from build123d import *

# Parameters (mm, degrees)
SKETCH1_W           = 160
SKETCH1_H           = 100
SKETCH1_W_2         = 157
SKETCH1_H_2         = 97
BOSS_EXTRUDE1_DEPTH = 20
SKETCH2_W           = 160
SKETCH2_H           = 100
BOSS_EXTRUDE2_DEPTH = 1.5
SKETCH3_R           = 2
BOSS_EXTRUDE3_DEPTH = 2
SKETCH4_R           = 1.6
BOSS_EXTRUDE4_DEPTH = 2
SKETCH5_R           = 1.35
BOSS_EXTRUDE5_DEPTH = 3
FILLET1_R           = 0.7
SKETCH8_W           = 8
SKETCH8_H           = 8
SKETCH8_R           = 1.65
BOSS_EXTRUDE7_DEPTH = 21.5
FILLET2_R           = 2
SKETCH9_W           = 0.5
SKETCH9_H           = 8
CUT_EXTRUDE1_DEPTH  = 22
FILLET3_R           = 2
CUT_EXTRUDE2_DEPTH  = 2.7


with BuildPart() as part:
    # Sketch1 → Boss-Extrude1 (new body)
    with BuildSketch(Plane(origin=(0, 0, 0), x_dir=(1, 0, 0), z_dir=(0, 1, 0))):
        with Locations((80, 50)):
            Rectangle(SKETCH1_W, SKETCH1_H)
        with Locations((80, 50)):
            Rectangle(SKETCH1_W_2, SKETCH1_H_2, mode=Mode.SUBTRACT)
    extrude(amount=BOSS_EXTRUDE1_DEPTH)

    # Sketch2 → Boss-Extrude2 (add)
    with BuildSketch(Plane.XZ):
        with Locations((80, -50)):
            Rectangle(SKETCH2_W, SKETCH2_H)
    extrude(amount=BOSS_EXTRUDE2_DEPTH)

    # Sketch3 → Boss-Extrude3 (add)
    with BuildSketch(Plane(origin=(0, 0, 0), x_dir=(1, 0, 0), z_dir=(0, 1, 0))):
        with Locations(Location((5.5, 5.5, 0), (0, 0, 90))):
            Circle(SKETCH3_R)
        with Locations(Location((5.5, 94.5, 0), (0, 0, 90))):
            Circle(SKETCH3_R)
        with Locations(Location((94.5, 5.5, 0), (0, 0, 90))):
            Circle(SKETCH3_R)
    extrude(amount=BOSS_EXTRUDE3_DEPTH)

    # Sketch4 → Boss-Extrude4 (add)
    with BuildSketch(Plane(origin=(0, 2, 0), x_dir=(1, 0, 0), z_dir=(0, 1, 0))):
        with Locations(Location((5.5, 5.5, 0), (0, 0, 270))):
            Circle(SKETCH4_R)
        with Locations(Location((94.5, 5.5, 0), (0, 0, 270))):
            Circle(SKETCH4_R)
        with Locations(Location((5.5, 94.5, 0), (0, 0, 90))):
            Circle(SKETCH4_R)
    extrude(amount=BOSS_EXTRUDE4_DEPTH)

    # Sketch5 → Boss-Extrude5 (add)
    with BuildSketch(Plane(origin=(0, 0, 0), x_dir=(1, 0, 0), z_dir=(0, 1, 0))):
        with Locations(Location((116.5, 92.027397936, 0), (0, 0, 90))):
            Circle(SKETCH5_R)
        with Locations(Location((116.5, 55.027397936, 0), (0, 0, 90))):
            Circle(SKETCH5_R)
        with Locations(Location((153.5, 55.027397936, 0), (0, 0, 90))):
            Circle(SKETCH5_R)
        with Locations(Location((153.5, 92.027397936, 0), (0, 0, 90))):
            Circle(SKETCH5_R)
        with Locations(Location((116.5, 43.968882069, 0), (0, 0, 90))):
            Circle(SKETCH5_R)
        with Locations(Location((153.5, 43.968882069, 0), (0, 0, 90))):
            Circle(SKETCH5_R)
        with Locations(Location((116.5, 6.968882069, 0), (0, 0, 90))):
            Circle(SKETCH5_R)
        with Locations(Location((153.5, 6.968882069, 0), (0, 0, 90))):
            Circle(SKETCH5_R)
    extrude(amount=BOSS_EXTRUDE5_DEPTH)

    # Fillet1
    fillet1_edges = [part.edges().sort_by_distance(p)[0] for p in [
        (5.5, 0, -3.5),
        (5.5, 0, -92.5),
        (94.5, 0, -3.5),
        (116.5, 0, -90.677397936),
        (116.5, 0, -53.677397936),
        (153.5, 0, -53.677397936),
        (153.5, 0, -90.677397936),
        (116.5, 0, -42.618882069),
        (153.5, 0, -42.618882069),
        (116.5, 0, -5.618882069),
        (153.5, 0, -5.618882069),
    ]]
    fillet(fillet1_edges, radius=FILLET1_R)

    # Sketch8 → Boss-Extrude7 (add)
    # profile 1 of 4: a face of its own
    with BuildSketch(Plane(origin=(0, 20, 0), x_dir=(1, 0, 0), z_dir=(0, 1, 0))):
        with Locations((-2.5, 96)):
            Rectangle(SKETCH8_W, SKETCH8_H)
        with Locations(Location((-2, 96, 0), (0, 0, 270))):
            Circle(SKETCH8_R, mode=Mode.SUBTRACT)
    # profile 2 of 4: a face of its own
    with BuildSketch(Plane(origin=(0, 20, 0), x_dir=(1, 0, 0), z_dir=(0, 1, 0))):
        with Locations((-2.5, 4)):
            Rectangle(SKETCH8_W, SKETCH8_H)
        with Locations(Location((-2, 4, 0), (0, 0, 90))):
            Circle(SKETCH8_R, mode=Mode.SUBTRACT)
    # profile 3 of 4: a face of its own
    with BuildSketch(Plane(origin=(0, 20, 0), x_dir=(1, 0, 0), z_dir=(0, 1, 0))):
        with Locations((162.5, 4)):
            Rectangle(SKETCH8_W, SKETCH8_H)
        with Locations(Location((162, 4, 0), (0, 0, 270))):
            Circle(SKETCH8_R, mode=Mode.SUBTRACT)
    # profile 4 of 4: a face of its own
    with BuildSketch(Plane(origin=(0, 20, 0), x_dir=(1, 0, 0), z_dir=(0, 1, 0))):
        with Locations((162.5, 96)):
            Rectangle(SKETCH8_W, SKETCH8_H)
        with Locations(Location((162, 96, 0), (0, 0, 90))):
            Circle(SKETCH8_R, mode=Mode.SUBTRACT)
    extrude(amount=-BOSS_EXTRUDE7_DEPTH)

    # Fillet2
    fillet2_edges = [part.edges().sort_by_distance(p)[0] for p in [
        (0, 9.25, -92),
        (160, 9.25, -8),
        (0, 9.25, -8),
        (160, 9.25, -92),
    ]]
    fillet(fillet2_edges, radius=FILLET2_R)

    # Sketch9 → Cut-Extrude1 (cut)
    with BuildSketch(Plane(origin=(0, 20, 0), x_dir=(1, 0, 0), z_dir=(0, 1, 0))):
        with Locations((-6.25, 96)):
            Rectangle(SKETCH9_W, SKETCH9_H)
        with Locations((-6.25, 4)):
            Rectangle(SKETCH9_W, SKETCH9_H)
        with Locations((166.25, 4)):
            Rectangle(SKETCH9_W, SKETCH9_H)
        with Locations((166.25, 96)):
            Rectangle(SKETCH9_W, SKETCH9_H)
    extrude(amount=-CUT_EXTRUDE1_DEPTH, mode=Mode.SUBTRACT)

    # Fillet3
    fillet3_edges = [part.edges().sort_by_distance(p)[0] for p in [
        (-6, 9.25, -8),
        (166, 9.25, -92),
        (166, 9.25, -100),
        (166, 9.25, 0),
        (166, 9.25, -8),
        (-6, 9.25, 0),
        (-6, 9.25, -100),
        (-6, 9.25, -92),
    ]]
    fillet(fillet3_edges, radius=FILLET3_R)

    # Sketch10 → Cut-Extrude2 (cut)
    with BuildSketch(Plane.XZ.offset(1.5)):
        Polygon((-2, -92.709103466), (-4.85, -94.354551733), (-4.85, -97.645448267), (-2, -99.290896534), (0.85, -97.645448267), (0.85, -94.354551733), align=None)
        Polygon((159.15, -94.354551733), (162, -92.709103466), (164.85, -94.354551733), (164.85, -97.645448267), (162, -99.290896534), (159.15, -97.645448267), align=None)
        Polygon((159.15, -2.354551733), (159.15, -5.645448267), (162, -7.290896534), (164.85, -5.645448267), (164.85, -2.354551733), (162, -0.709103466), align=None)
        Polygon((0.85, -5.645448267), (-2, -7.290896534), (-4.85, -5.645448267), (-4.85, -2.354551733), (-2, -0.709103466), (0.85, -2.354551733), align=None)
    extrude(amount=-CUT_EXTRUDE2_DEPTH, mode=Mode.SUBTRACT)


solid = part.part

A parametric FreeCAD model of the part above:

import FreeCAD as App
import Part
import Sketcher
Q = App.Units.Quantity


def edges_at(feature, points):
    """Names of the edges that pass closest to the given points."""
    edges = feature.Shape.Edges
    near = lambda p: min(range(len(edges)), key=lambda i: edges[i].distToShape(Part.Vertex(*p))[0])
    return sorted({f"Edge{near(p) + 1}" for p in points})


def add_polygon(sketch, points):
    """Adds a closed chain of lines whose ends are joined by coincident constraints."""
    first, n = sketch.GeometryCount, len(points)
    for a, b in zip(points, points[1:] + points[:1]):
        sketch.addGeometry(Part.LineSegment(App.Vector(*a, 0), App.Vector(*b, 0)), False)
    for i in range(n):
        sketch.addConstraint(Sketcher.Constraint("Coincident", first + i, 2, first + (i + 1) % n, 1))

doc = App.newDocument("Part")
body = doc.addObject("PartDesign::Body", "Body")

# Sketch on XZ plane
sketch1 = body.newObject("Sketcher::SketchObject", "Sketch")
sketch1.AttachmentSupport = (doc.getObject("XZ_Plane"), [""])
sketch1.MapMode = "FlatFace"
add_polygon(sketch1, [(0, -100), (0, 0), (160, 0), (160, -100)])  # lines 0-3
add_polygon(sketch1, [(158, -2), (2, -2), (2, -98), (158, -98)])  # lines 4-7
sketch1.addConstraint(Sketcher.Constraint("Vertical", 0))
sketch1.addConstraint(Sketcher.Constraint("Horizontal", 1))
sketch1.addConstraint(Sketcher.Constraint("Vertical", 2))
sketch1.addConstraint(Sketcher.Constraint("Horizontal", 3))
sketch1.addConstraint(Sketcher.Constraint("Horizontal", 4))
sketch1.addConstraint(Sketcher.Constraint("Vertical", 5))
sketch1.addConstraint(Sketcher.Constraint("Horizontal", 6))
sketch1.addConstraint(Sketcher.Constraint("Vertical", 7))
sketch1.addConstraint(Sketcher.Constraint("Coincident", 0, 2, -1, 1))
sketch1.addConstraint(Sketcher.Constraint("DistanceX", 1, 1, 1, 2, Q("160 mm")))
sketch1.addConstraint(Sketcher.Constraint("DistanceX", 4, 2, 4, 1, Q("157 mm")))
sketch1.addConstraint(Sketcher.Constraint("DistanceY", 0, 1, 0, 2, Q("100 mm")))
sketch1.addConstraint(Sketcher.Constraint("DistanceY", 5, 2, 5, 1, Q("97 mm")))
sketch1.addConstraint(Sketcher.Constraint("DistanceX", -1, 1, 4, 2, Q("1.5 mm")))
sketch1.addConstraint(Sketcher.Constraint("DistanceY", 4, 2, -1, 1, Q("1.5 mm")))
pad1 = body.newObject("PartDesign::Pad", "Pad")
pad1.Profile = sketch1
pad1.Length = 20
pad1.Reversed = True

# Sketch on XZ plane
sketch2 = body.newObject("Sketcher::SketchObject", "Sketch001")
sketch2.AttachmentSupport = (doc.getObject("XZ_Plane"), [""])
sketch2.MapMode = "FlatFace"
add_polygon(sketch2, [(0, 0), (0, -100), (160, -100), (160, 0)])  # lines 0-3
sketch2.addConstraint(Sketcher.Constraint("Vertical", 0))
sketch2.addConstraint(Sketcher.Constraint("Horizontal", 1))
sketch2.addConstraint(Sketcher.Constraint("Vertical", 2))
sketch2.addConstraint(Sketcher.Constraint("Horizontal", 3))
sketch2.addConstraint(Sketcher.Constraint("Coincident", 3, 2, -1, 1))
sketch2.addConstraint(Sketcher.Constraint("DistanceX", 1, 1, 1, 2, Q("160 mm")))
sketch2.addConstraint(Sketcher.Constraint("DistanceY", 0, 2, 0, 1, Q("100 mm")))
pad2 = body.newObject("PartDesign::Pad", "Pad001")
pad2.Profile = sketch2
pad2.Length = 1.5

# Sketch on XZ plane
sketch3 = body.newObject("Sketcher::SketchObject", "Sketch002")
sketch3.AttachmentSupport = (doc.getObject("XZ_Plane"), [""])
sketch3.MapMode = "FlatFace"
sketch3.addGeometry(Part.Circle(App.Vector(5.5, -5.5, 0), App.Vector(0, 0, 1), 2), False)
sketch3.addGeometry(Part.Circle(App.Vector(5.5, -94.5, 0), App.Vector(0, 0, 1), 2), False)
sketch3.addGeometry(Part.Circle(App.Vector(94.5, -5.5, 0), App.Vector(0, 0, 1), 2), False)
sketch3.addConstraint(Sketcher.Constraint("Equal", 0, 1))
sketch3.addConstraint(Sketcher.Constraint("Equal", 1, 2))
sketch3.addConstraint(Sketcher.Constraint("Horizontal", 0, 3, 2, 3))
sketch3.addConstraint(Sketcher.Constraint("Vertical", 0, 3, 1, 3))
sketch3.addConstraint(Sketcher.Constraint("Diameter", 0, Q("4 mm")))
sketch3.addConstraint(Sketcher.Constraint("DistanceY", 1, 3, 0, 3, Q("89 mm")))
sketch3.addConstraint(Sketcher.Constraint("DistanceX", 0, 3, 2, 3, Q("89 mm")))
sketch3.addConstraint(Sketcher.Constraint("DistanceX", -1, 1, 0, 3, Q("5.5 mm")))
sketch3.addConstraint(Sketcher.Constraint("DistanceY", 0, 3, -1, 1, Q("5.5 mm")))
pad3 = body.newObject("PartDesign::Pad", "Pad002")
pad3.Profile = sketch3
pad3.Length = 2
pad3.Reversed = True

# Sketch on XZ plane
sketch4 = body.newObject("Sketcher::SketchObject", "Sketch003")
sketch4.AttachmentSupport = (doc.getObject("XZ_Plane"), [""])
sketch4.MapMode = "FlatFace"
sketch4.AttachmentOffset = App.Placement(App.Vector(0, 0, -2), App.Rotation())
sketch4.addGeometry(Part.Circle(App.Vector(5.5, -5.5, 0), App.Vector(0, 0, 1), 1.6), False)
sketch4.addGeometry(Part.Circle(App.Vector(94.5, -5.5, 0), App.Vector(0, 0, 1), 1.6), False)
sketch4.addGeometry(Part.Circle(App.Vector(5.5, -94.5, 0), App.Vector(0, 0, 1), 1.6), False)
sketch4.addConstraint(Sketcher.Constraint("Equal", 0, 1))
sketch4.addConstraint(Sketcher.Constraint("Equal", 1, 2))
sketch4.addConstraint(Sketcher.Constraint("Horizontal", 0, 3, 1, 3))
sketch4.addConstraint(Sketcher.Constraint("Vertical", 0, 3, 2, 3))
sketch4.addConstraint(Sketcher.Constraint("Diameter", 0, Q("3.2 mm")))
sketch4.addConstraint(Sketcher.Constraint("DistanceX", 0, 3, 1, 3, Q("89 mm")))
sketch4.addConstraint(Sketcher.Constraint("DistanceY", 2, 3, 0, 3, Q("89 mm")))
sketch4.addConstraint(Sketcher.Constraint("DistanceX", -1, 1, 0, 3, Q("5.5 mm")))
sketch4.addConstraint(Sketcher.Constraint("DistanceY", 0, 3, -1, 1, Q("5.5 mm")))
pad4 = body.newObject("PartDesign::Pad", "Pad003")
pad4.Profile = sketch4
pad4.Length = 2
pad4.Reversed = True

# Sketch on XZ plane
sketch5 = body.newObject("Sketcher::SketchObject", "Sketch004")
sketch5.AttachmentSupport = (doc.getObject("XZ_Plane"), [""])
sketch5.MapMode = "FlatFace"
sketch5.addGeometry(Part.Circle(App.Vector(116.5, -92, 0), App.Vector(0, 0, 1), 1.4), False)
sketch5.addGeometry(Part.Circle(App.Vector(116.5, -55, 0), App.Vector(0, 0, 1), 1.4), False)
sketch5.addGeometry(Part.Circle(App.Vector(153.5, -55, 0), App.Vector(0, 0, 1), 1.4), False)
sketch5.addGeometry(Part.Circle(App.Vector(153.5, -92, 0), App.Vector(0, 0, 1), 1.4), False)
sketch5.addGeometry(Part.Circle(App.Vector(116.5, -44, 0), App.Vector(0, 0, 1), 1.4), False)
sketch5.addGeometry(Part.Circle(App.Vector(153.5, -44, 0), App.Vector(0, 0, 1), 1.4), False)
sketch5.addGeometry(Part.Circle(App.Vector(116.5, -7, 0), App.Vector(0, 0, 1), 1.4), False)
sketch5.addGeometry(Part.Circle(App.Vector(153.5, -7, 0), App.Vector(0, 0, 1), 1.4), False)
sketch5.addConstraint(Sketcher.Constraint("Equal", 0, 1))
sketch5.addConstraint(Sketcher.Constraint("Equal", 1, 2))
sketch5.addConstraint(Sketcher.Constraint("Equal", 2, 3))
sketch5.addConstraint(Sketcher.Constraint("Equal", 3, 4))
sketch5.addConstraint(Sketcher.Constraint("Equal", 4, 5))
sketch5.addConstraint(Sketcher.Constraint("Equal", 5, 6))
sketch5.addConstraint(Sketcher.Constraint("Equal", 6, 7))
sketch5.addConstraint(Sketcher.Constraint("Horizontal", 1, 3, 2, 3))
sketch5.addConstraint(Sketcher.Constraint("Horizontal", 0, 3, 3, 3))
sketch5.addConstraint(Sketcher.Constraint("Horizontal", 4, 3, 5, 3))
sketch5.addConstraint(Sketcher.Constraint("Horizontal", 6, 3, 7, 3))
sketch5.addConstraint(Sketcher.Constraint("Vertical", 0, 3, 1, 3))
sketch5.addConstraint(Sketcher.Constraint("Vertical", 2, 3, 3, 3))
sketch5.addConstraint(Sketcher.Constraint("Vertical", 1, 3, 4, 3))
sketch5.addConstraint(Sketcher.Constraint("Vertical", 3, 3, 5, 3))
sketch5.addConstraint(Sketcher.Constraint("Vertical", 4, 3, 6, 3))
sketch5.addConstraint(Sketcher.Constraint("Vertical", 5, 3, 7, 3))
sketch5.addConstraint(Sketcher.Constraint("Diameter", 0, Q("2.7 mm")))
sketch5.addConstraint(Sketcher.Constraint("DistanceY", 0, 3, 1, 3, Q("37 mm")))
sketch5.addConstraint(Sketcher.Constraint("DistanceX", 1, 3, 2, 3, Q("37 mm")))
sketch5.addConstraint(Sketcher.Constraint("DistanceY", 4, 3, 6, 3, Q("37 mm")))
sketch5.addConstraint(Sketcher.Constraint("DistanceX", -1, 1, 0, 3, Q("116.5 mm")))
sketch5.addConstraint(Sketcher.Constraint("DistanceY", 0, 3, -1, 1, Q("92.027398 mm")))
sketch5.addConstraint(Sketcher.Constraint("DistanceY", 4, 3, -1, 1, Q("43.968882 mm")))
pad5 = body.newObject("PartDesign::Pad", "Pad004")
pad5.Profile = sketch5
pad5.Length = 3
pad5.Reversed = True
doc.recompute()

fillet = body.newObject("PartDesign::Fillet", "Fillet")
fillet.Base = (pad5, edges_at(pad5, [
    (5.5, 0, -3.5),
    (5.5, 0, -92.5),
    (94.5, 0, -3.5),
    (116.5, 0, -90.677),
    (116.5, 0, -53.677),
    (153.5, 0, -53.677),
    (153.5, 0, -90.677),
    (116.5, 0, -42.619),
    (153.5, 0, -42.619),
    (116.5, 0, -5.619),
    (153.5, 0, -5.619),
]))
fillet.Radius = 0.7

# Sketch on XZ plane
sketch6 = body.newObject("Sketcher::SketchObject", "Sketch005")
sketch6.AttachmentSupport = (doc.getObject("XZ_Plane"), [""])
sketch6.MapMode = "FlatFace"
sketch6.AttachmentOffset = App.Placement(App.Vector(0, 0, -20), App.Rotation())
add_polygon(sketch6, [(-6.5, -100), (-6.5, -92), (1.5, -92), (1.5, -100)])  # lines 0-3
sketch6.addGeometry(Part.Circle(App.Vector(-2, -96, 0), App.Vector(0, 0, 1), 1.6), False)  # 4
add_polygon(sketch6, [(-6.5, -8), (-6.5, 0), (1.5, 0), (1.5, -8)])  # lines 5-8
sketch6.addGeometry(Part.Circle(App.Vector(-2, -4, 0), App.Vector(0, 0, 1), 1.6), False)  # 9
add_polygon(sketch6, [(158.5, -8), (158.5, 0), (166.5, 0), (166.5, -8)])  # lines 10-13
sketch6.addGeometry(Part.Circle(App.Vector(162, -4, 0), App.Vector(0, 0, 1), 1.6), False)  # 14
add_polygon(sketch6, [(158.5, -100), (158.5, -92), (166.5, -92), (166.5, -100)])  # lines 15-18
sketch6.addGeometry(Part.Circle(App.Vector(162, -96, 0), App.Vector(0, 0, 1), 1.6), False)  # 19
sketch6.addConstraint(Sketcher.Constraint("Vertical", 0))
sketch6.addConstraint(Sketcher.Constraint("Horizontal", 1))
sketch6.addConstraint(Sketcher.Constraint("Vertical", 2))
sketch6.addConstraint(Sketcher.Constraint("Horizontal", 3))
sketch6.addConstraint(Sketcher.Constraint("Vertical", 5))
sketch6.addConstraint(Sketcher.Constraint("Horizontal", 6))
sketch6.addConstraint(Sketcher.Constraint("Vertical", 7))
sketch6.addConstraint(Sketcher.Constraint("Horizontal", 8))
sketch6.addConstraint(Sketcher.Constraint("Vertical", 10))
sketch6.addConstraint(Sketcher.Constraint("Horizontal", 11))
sketch6.addConstraint(Sketcher.Constraint("Vertical", 12))
sketch6.addConstraint(Sketcher.Constraint("Horizontal", 13))
sketch6.addConstraint(Sketcher.Constraint("Vertical", 15))
sketch6.addConstraint(Sketcher.Constraint("Horizontal", 16))
sketch6.addConstraint(Sketcher.Constraint("Vertical", 17))
sketch6.addConstraint(Sketcher.Constraint("Horizontal", 18))
sketch6.addConstraint(Sketcher.Constraint("Equal", 4, 9))
sketch6.addConstraint(Sketcher.Constraint("Equal", 9, 14))
sketch6.addConstraint(Sketcher.Constraint("Equal", 14, 19))
sketch6.addConstraint(Sketcher.Constraint("PointOnObject", 5, 2, -1))
sketch6.addConstraint(Sketcher.Constraint("PointOnObject", 10, 2, -1))
sketch6.addConstraint(Sketcher.Constraint("Horizontal", 9, 3, 14, 3))
sketch6.addConstraint(Sketcher.Constraint("Horizontal", 4, 3, 19, 3))
sketch6.addConstraint(Sketcher.Constraint("Horizontal", 8, 2, 12, 2))
sketch6.addConstraint(Sketcher.Constraint("Horizontal", 1, 2, 15, 2))
sketch6.addConstraint(Sketcher.Constraint("Horizontal", 3, 2, 17, 2))
sketch6.addConstraint(Sketcher.Constraint("Vertical", 4, 3, 9, 3))
sketch6.addConstraint(Sketcher.Constraint("Vertical", 14, 3, 19, 3))
sketch6.addConstraint(Sketcher.Constraint("Vertical", 3, 2, 5, 2))
sketch6.addConstraint(Sketcher.Constraint("Vertical", 2, 2, 6, 2))
sketch6.addConstraint(Sketcher.Constraint("Vertical", 13, 2, 15, 2))
sketch6.addConstraint(Sketcher.Constraint("Vertical", 12, 2, 16, 2))
sketch6.addConstraint(Sketcher.Constraint("Equal", 8, 11))
sketch6.addConstraint(Sketcher.Constraint("Equal", 18, 0))
sketch6.addConstraint(Sketcher.Constraint("Equal", 2, 5))
sketch6.addConstraint(Sketcher.Constraint("Diameter", 4, Q("3.3 mm")))
sketch6.addConstraint(Sketcher.Constraint("DistanceX", 1, 1, 1, 2, Q("8 mm")))
sketch6.addConstraint(Sketcher.Constraint("DistanceX", 4, 3, -1, 1, Q("2 mm")))
sketch6.addConstraint(Sketcher.Constraint("DistanceY", 4, 3, -1, 1, Q("96 mm")))
sketch6.addConstraint(Sketcher.Constraint("DistanceY", 9, 3, -1, 1, Q("4 mm")))
sketch6.addConstraint(Sketcher.Constraint("DistanceX", -1, 1, 14, 3, Q("162 mm")))
sketch6.addConstraint(Sketcher.Constraint("DistanceY", 0, 2, -1, 1, Q("92 mm")))
sketch6.addConstraint(Sketcher.Constraint("DistanceX", 6, 2, 10, 2, Q("157 mm")))
sketch6.addConstraint(Sketcher.Constraint("DistanceX", 0, 2, -1, 1, Q("6.5 mm")))
pad6 = body.newObject("PartDesign::Pad", "Pad005")
pad6.Profile = sketch6
pad6.Length = 21.5
doc.recompute()

fillet2 = body.newObject("PartDesign::Fillet", "Fillet001")
fillet2.Base = (pad6, edges_at(pad6, [
    (0, 9.25, -92),
    (160, 9.25, -8),
    (0, 9.25, -8),
    (160, 9.25, -92),
]))
fillet2.Radius = 2

# Sketch on XZ plane
sketch7 = body.newObject("Sketcher::SketchObject", "Sketch006")
sketch7.AttachmentSupport = (doc.getObject("XZ_Plane"), [""])
sketch7.MapMode = "FlatFace"
sketch7.AttachmentOffset = App.Placement(App.Vector(0, 0, -20), App.Rotation())
add_polygon(sketch7, [(-6.5, -100), (-6.5, -92), (-6, -92), (-6, -100)])  # lines 0-3
add_polygon(sketch7, [(-6.5, -8), (-6.5, 0), (-6, 0), (-6, -8)])  # lines 4-7
add_polygon(sketch7, [(166, -8), (166, 0), (166.5, 0), (166.5, -8)])  # lines 8-11
add_polygon(sketch7, [(166, -100), (166, -92), (166.5, -92), (166.5, -100)])  # lines 12-15
sketch7.addConstraint(Sketcher.Constraint("Vertical", 0))
sketch7.addConstraint(Sketcher.Constraint("Horizontal", 1))
sketch7.addConstraint(Sketcher.Constraint("Vertical", 2))
sketch7.addConstraint(Sketcher.Constraint("Horizontal", 3))
sketch7.addConstraint(Sketcher.Constraint("Vertical", 4))
sketch7.addConstraint(Sketcher.Constraint("Horizontal", 5))
sketch7.addConstraint(Sketcher.Constraint("Vertical", 6))
sketch7.addConstraint(Sketcher.Constraint("Horizontal", 7))
sketch7.addConstraint(Sketcher.Constraint("Vertical", 8))
sketch7.addConstraint(Sketcher.Constraint("Horizontal", 9))
sketch7.addConstraint(Sketcher.Constraint("Vertical", 10))
sketch7.addConstraint(Sketcher.Constraint("Horizontal", 11))
sketch7.addConstraint(Sketcher.Constraint("Vertical", 12))
sketch7.addConstraint(Sketcher.Constraint("Horizontal", 13))
sketch7.addConstraint(Sketcher.Constraint("Vertical", 14))
sketch7.addConstraint(Sketcher.Constraint("Horizontal", 15))
sketch7.addConstraint(Sketcher.Constraint("PointOnObject", 4, 2, -1))
sketch7.addConstraint(Sketcher.Constraint("PointOnObject", 8, 2, -1))
sketch7.addConstraint(Sketcher.Constraint("Horizontal", 7, 2, 10, 2))
sketch7.addConstraint(Sketcher.Constraint("Horizontal", 1, 2, 12, 2))
sketch7.addConstraint(Sketcher.Constraint("Horizontal", 3, 2, 14, 2))
sketch7.addConstraint(Sketcher.Constraint("Vertical", 3, 2, 4, 2))
sketch7.addConstraint(Sketcher.Constraint("Vertical", 2, 2, 5, 2))
sketch7.addConstraint(Sketcher.Constraint("Vertical", 11, 2, 12, 2))
sketch7.addConstraint(Sketcher.Constraint("Vertical", 10, 2, 13, 2))
sketch7.addConstraint(Sketcher.Constraint("Equal", 7, 9))
sketch7.addConstraint(Sketcher.Constraint("Equal", 2, 4))
sketch7.addConstraint(Sketcher.Constraint("DistanceY", 0, 1, 0, 2, Q("8 mm")))
sketch7.addConstraint(Sketcher.Constraint("DistanceX", 1, 1, 1, 2, Q("0.5 mm")))
sketch7.addConstraint(Sketcher.Constraint("DistanceY", 0, 2, -1, 1, Q("92 mm")))
sketch7.addConstraint(Sketcher.Constraint("DistanceX", 1, 2, -1, 1, Q("6 mm")))
sketch7.addConstraint(Sketcher.Constraint("DistanceX", -1, 1, 8, 2, Q("166 mm")))
pocket1 = body.newObject("PartDesign::Pocket", "Pocket")
pocket1.Profile = sketch7
pocket1.Length = 22
pocket1.Reversed = True
doc.recompute()

fillet3 = body.newObject("PartDesign::Fillet", "Fillet002")
fillet3.Base = (pocket1, edges_at(pocket1, [
    (-6, 9.25, -8),
    (166, 9.25, -92),
    (166, 9.25, -100),
    (166, 9.25, 0),
    (166, 9.25, -8),
    (-6, 9.25, 0),
    (-6, 9.25, -100),
    (-6, 9.25, -92),
]))
fillet3.Radius = 2

# Sketch on XZ plane
sketch8 = body.newObject("Sketcher::SketchObject", "Sketch007")
sketch8.AttachmentSupport = (doc.getObject("XZ_Plane"), [""])
sketch8.MapMode = "FlatFace"
sketch8.AttachmentOffset = App.Placement(App.Vector(0, 0, 1.5), App.Rotation())
add_polygon(sketch8, [(-2, -92.7), (-4.8, -94.4), (-4.8, -97.6), (-2, -99.3), (0.8, -97.6), (0.8, -94.4)])  # lines 0-5
add_polygon(sketch8, [(162, -92.7), (159.2, -94.4), (159.2, -97.6), (162, -99.3), (164.8, -97.6), (164.8, -94.4)])  # lines 6-11
add_polygon(sketch8, [(159.2, -2.4), (159.2, -5.6), (162, -7.3), (164.8, -5.6), (164.8, -2.4), (162, -0.7)])  # lines 12-17
add_polygon(sketch8, [(-2, -7.3), (0.8, -5.6), (0.8, -2.4), (-2, -0.7), (-4.8, -2.4), (-4.8, -5.6)])  # lines 18-23
sketch8.addConstraint(Sketcher.Constraint("Vertical", 1))
sketch8.addConstraint(Sketcher.Constraint("Vertical", 4))
sketch8.addConstraint(Sketcher.Constraint("Vertical", 7))
sketch8.addConstraint(Sketcher.Constraint("Vertical", 10))
sketch8.addConstraint(Sketcher.Constraint("Vertical", 12))
sketch8.addConstraint(Sketcher.Constraint("Vertical", 15))
sketch8.addConstraint(Sketcher.Constraint("Vertical", 19))
sketch8.addConstraint(Sketcher.Constraint("Vertical", 22))
sketch8.addConstraint(Sketcher.Constraint("Parallel", 0, 3))
sketch8.addConstraint(Sketcher.Constraint("Parallel", 2, 5))
sketch8.addConstraint(Sketcher.Constraint("Parallel", 3, 6))
sketch8.addConstraint(Sketcher.Constraint("Parallel", 5, 8))
sketch8.addConstraint(Sketcher.Constraint("Parallel", 6, 9))
sketch8.addConstraint(Sketcher.Constraint("Parallel", 8, 11))
sketch8.addConstraint(Sketcher.Constraint("Parallel", 11, 13))
sketch8.addConstraint(Sketcher.Constraint("Parallel", 9, 14))
sketch8.addConstraint(Sketcher.Constraint("Parallel", 13, 16))
sketch8.addConstraint(Sketcher.Constraint("Parallel", 14, 17))
sketch8.addConstraint(Sketcher.Constraint("Parallel", 17, 18))
sketch8.addConstraint(Sketcher.Constraint("Parallel", 16, 20))
sketch8.addConstraint(Sketcher.Constraint("Parallel", 18, 21))
sketch8.addConstraint(Sketcher.Constraint("Parallel", 20, 23))
sketch8.addConstraint(Sketcher.Constraint("Horizontal", 1, 2, 3, 2))
sketch8.addConstraint(Sketcher.Constraint("Horizontal", 0, 2, 4, 2))
sketch8.addConstraint(Sketcher.Constraint("Horizontal", 4, 2, 6, 2))
sketch8.addConstraint(Sketcher.Constraint("Horizontal", 3, 2, 7, 2))
sketch8.addConstraint(Sketcher.Constraint("Horizontal", 2, 2, 8, 2))
sketch8.addConstraint(Sketcher.Constraint("Horizontal", 7, 2, 9, 2))
sketch8.addConstraint(Sketcher.Constraint("Horizontal", 6, 2, 10, 2))
sketch8.addConstraint(Sketcher.Constraint("Horizontal", 12, 2, 14, 2))
sketch8.addConstraint(Sketcher.Constraint("Horizontal", 15, 2, 17, 2))
sketch8.addConstraint(Sketcher.Constraint("Horizontal", 14, 2, 18, 2))
sketch8.addConstraint(Sketcher.Constraint("Horizontal", 17, 2, 19, 2))
sketch8.addConstraint(Sketcher.Constraint("Horizontal", 16, 2, 20, 2))
sketch8.addConstraint(Sketcher.Constraint("Horizontal", 19, 2, 21, 2))
sketch8.addConstraint(Sketcher.Constraint("Horizontal", 18, 2, 22, 2))
sketch8.addConstraint(Sketcher.Constraint("Vertical", 2, 2, 5, 2))
sketch8.addConstraint(Sketcher.Constraint("Vertical", 7, 2, 12, 2))
sketch8.addConstraint(Sketcher.Constraint("Vertical", 11, 2, 13, 2))
sketch8.addConstraint(Sketcher.Constraint("Vertical", 4, 2, 18, 2))
sketch8.addConstraint(Sketcher.Constraint("Equal", 10, 12))
sketch8.addConstraint(Sketcher.Constraint("Angle", 0, Q("-150 deg")))
sketch8.addConstraint(Sketcher.Constraint("DistanceX", 2, 2, -1, 1, Q("2 mm")))
sketch8.addConstraint(Sketcher.Constraint("DistanceX", -1, 1, 8, 2, Q("162 mm")))
sketch8.addConstraint(Sketcher.Constraint("DistanceY", 7, 2, 12, 2, Q("92 mm")))
sketch8.addConstraint(Sketcher.Constraint("DistanceX", 1, 2, 3, 2, Q("5.7 mm")))
sketch8.addConstraint(Sketcher.Constraint("DistanceY", 1, 2, 1, 1, Q("3.290897 mm")))
sketch8.addConstraint(Sketcher.Constraint("DistanceY", 0, 2, -1, 1, Q("94.354552 mm")))
pocket2 = body.newObject("PartDesign::Pocket", "Pocket001")
pocket2.Profile = sketch8
pocket2.Length = 2.7

doc.recompute()
